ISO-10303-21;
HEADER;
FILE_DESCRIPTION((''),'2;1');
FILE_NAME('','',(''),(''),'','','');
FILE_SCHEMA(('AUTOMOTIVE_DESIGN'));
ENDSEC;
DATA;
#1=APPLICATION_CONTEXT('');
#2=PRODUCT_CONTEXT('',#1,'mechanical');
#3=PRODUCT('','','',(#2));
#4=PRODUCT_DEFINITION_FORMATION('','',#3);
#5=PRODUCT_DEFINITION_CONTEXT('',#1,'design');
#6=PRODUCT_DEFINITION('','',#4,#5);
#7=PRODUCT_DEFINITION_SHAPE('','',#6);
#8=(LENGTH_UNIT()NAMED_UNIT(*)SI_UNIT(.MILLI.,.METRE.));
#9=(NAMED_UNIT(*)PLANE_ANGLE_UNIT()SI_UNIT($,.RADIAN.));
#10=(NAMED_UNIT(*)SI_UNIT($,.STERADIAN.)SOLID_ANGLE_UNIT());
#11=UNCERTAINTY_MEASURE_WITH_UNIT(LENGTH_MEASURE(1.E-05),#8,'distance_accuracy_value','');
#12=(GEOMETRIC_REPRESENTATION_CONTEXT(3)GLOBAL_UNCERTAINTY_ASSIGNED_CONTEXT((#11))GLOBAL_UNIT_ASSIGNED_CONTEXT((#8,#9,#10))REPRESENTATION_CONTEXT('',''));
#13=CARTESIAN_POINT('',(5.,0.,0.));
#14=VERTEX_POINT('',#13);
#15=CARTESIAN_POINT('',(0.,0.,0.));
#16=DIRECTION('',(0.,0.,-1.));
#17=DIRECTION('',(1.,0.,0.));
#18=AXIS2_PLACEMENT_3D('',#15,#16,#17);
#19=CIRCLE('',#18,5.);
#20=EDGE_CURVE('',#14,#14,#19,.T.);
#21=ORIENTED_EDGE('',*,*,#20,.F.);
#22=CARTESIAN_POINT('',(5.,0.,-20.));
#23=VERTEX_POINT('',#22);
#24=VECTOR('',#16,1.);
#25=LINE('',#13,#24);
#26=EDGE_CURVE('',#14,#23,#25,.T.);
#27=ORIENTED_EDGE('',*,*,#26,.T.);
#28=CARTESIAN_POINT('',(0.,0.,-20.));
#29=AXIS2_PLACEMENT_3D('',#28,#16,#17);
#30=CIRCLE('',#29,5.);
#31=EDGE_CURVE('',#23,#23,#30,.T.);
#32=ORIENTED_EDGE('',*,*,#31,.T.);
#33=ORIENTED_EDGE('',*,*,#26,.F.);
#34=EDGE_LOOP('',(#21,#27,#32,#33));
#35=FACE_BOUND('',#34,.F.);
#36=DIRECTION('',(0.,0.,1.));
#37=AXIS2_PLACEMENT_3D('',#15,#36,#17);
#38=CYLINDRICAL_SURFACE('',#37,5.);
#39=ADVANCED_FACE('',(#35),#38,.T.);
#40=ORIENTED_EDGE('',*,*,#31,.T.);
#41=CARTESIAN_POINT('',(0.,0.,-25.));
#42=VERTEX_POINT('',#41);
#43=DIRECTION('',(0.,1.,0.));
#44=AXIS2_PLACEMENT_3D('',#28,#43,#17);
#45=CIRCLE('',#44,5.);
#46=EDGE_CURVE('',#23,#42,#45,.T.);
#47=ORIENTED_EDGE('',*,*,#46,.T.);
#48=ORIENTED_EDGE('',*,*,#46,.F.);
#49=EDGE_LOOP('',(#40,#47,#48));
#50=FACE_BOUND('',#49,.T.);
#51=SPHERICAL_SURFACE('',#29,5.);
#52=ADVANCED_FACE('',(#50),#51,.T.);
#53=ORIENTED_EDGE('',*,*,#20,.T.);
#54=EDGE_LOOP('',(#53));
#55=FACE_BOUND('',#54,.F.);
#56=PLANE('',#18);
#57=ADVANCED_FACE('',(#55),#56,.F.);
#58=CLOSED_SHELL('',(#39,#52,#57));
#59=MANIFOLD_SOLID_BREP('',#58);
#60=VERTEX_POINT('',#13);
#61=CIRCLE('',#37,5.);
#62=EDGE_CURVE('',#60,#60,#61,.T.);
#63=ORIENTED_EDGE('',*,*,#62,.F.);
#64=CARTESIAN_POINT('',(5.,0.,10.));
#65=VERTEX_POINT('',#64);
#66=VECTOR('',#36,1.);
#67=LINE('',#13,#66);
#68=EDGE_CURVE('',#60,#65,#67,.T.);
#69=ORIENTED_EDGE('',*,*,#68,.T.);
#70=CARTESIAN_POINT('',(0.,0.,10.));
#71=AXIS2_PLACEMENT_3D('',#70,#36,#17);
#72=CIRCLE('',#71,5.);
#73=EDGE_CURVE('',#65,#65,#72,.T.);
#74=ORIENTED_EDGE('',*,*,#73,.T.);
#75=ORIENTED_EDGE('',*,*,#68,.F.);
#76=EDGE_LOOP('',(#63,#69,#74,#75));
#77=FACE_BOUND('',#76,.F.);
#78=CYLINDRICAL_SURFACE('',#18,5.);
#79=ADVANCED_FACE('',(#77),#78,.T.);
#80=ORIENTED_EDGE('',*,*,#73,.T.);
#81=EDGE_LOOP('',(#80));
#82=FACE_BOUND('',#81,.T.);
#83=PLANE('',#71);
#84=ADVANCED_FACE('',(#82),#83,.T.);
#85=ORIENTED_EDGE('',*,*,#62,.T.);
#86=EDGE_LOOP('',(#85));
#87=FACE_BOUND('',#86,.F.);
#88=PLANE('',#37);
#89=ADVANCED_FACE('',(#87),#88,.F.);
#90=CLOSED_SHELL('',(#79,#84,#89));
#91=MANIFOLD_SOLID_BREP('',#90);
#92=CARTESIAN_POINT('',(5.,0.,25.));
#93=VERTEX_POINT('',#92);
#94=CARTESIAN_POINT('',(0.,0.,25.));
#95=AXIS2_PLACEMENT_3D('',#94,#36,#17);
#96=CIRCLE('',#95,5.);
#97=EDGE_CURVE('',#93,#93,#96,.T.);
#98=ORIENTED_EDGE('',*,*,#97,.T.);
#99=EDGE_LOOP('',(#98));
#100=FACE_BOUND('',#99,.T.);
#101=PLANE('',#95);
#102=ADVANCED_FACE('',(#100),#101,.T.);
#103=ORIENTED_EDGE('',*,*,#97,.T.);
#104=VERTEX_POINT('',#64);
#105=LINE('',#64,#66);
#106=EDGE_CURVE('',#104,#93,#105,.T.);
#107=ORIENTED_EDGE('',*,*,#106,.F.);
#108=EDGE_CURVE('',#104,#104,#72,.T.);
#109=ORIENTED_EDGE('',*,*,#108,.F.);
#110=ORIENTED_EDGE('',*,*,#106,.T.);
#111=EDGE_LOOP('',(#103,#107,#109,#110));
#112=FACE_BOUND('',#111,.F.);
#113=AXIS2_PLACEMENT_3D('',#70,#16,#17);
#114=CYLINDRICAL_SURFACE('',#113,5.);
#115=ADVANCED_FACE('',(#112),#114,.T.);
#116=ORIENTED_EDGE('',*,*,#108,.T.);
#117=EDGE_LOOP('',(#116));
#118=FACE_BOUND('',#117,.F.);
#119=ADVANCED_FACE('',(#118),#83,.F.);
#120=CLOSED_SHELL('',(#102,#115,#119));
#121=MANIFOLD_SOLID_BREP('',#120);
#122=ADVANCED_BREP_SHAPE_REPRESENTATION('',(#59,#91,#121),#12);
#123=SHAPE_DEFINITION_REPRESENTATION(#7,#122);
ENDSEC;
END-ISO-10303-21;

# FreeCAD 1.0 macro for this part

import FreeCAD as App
import Part
import Sketcher
Q = App.Units.Quantity


def edges_at(feature, points):
    """Names of the edges that pass closest to the given points."""
    edges = feature.Shape.Edges
    near = lambda p: min(range(len(edges)), key=lambda i: edges[i].distToShape(Part.Vertex(*p))[0])
    return sorted({f"Edge{near(p) + 1}" for p in points})

doc = App.newDocument("Part")
params = doc.addObject("Spreadsheet::Sheet", "Params")
for row, (alias, value) in enumerate([
    ("sketch1_diameter", "10 mm"),
    ("pad1_length", "10 mm"),
    ("sketch2_diameter", "10 mm"),
    ("pad2_length", "15 mm"),
    ("sketch3_diameter", "10 mm"),
    ("pad3_length", "25 mm"),
    ("fillet_radius", "5 mm"),
], start=1):
    params.set(f"A{row}", alias)
    params.set(f"B{row}", "=" + value)
    params.setAlias(f"B{row}", alias)

body = doc.addObject("PartDesign::Body", "Body")

# Sketch on XY plane
sketch1 = body.newObject("Sketcher::SketchObject", "Sketch")
sketch1.AttachmentSupport = (doc.getObject("XY_Plane"), [""])
sketch1.MapMode = "FlatFace"
sketch1.addGeometry(Part.Circle(App.Vector(0, 0, 0), App.Vector(0, 0, 1), 5), False)
sketch1.addConstraint([
    Sketcher.Constraint("Coincident", 0, 3, -1, 1),
    Sketcher.Constraint("Diameter", 0, Q("10 mm")),
])
sketch1.setExpression("Constraints[1]", "Params.sketch1_diameter")
pad1 = body.newObject("PartDesign::Pad", "Pad")
pad1.Profile = sketch1
pad1.setExpression("Length", "Params.pad1_length")
body2 = doc.addObject("PartDesign::Body", "Body001")

# Sketch on XY plane
sketch2 = body2.newObject("Sketcher::SketchObject", "Sketch001")
sketch2.AttachmentSupport = (doc.getObject("XY_Plane001"), [""])
sketch2.MapMode = "FlatFace"
sketch2.AttachmentOffset = App.Placement(App.Vector(0, 0, 10), App.Rotation())
sketch2.addGeometry(Part.Circle(App.Vector(0, 0, 0), App.Vector(0, 0, 1), 5), False)
sketch2.addConstraint([
    Sketcher.Constraint("Coincident", 0, 3, -1, 1),
    Sketcher.Constraint("Diameter", 0, Q("10 mm")),
])
sketch2.setExpression("Constraints[1]", "Params.sketch2_diameter")
pad2 = body2.newObject("PartDesign::Pad", "Pad001")
pad2.Profile = sketch2
pad2.setExpression("Length", "Params.pad2_length")
body3 = doc.addObject("PartDesign::Body", "Body002")

# Sketch on XY plane
sketch3 = body3.newObject("Sketcher::SketchObject", "Sketch002")
sketch3.AttachmentSupport = (doc.getObject("XY_Plane002"), [""])
sketch3.MapMode = "FlatFace"
sketch3.addGeometry(Part.Circle(App.Vector(0, 0, 0), App.Vector(0, 0, 1), 5), False)
sketch3.addConstraint([
    Sketcher.Constraint("Coincident", 0, 3, -1, 1),
    Sketcher.Constraint("Diameter", 0, Q("10 mm")),
])
sketch3.setExpression("Constraints[1]", "Params.sketch3_diameter")
pad3 = body3.newObject("PartDesign::Pad", "Pad002")
pad3.Profile = sketch3
pad3.setExpression("Length", "Params.pad3_length")
pad3.Reversed = True
doc.recompute()

fillet = body3.newObject("PartDesign::Fillet", "Fillet")
fillet.Base = (pad3, edges_at(pad3, [(-5, 0, -25)]))
fillet.setExpression("Radius", "Params.fillet_radius")

doc.recompute()
